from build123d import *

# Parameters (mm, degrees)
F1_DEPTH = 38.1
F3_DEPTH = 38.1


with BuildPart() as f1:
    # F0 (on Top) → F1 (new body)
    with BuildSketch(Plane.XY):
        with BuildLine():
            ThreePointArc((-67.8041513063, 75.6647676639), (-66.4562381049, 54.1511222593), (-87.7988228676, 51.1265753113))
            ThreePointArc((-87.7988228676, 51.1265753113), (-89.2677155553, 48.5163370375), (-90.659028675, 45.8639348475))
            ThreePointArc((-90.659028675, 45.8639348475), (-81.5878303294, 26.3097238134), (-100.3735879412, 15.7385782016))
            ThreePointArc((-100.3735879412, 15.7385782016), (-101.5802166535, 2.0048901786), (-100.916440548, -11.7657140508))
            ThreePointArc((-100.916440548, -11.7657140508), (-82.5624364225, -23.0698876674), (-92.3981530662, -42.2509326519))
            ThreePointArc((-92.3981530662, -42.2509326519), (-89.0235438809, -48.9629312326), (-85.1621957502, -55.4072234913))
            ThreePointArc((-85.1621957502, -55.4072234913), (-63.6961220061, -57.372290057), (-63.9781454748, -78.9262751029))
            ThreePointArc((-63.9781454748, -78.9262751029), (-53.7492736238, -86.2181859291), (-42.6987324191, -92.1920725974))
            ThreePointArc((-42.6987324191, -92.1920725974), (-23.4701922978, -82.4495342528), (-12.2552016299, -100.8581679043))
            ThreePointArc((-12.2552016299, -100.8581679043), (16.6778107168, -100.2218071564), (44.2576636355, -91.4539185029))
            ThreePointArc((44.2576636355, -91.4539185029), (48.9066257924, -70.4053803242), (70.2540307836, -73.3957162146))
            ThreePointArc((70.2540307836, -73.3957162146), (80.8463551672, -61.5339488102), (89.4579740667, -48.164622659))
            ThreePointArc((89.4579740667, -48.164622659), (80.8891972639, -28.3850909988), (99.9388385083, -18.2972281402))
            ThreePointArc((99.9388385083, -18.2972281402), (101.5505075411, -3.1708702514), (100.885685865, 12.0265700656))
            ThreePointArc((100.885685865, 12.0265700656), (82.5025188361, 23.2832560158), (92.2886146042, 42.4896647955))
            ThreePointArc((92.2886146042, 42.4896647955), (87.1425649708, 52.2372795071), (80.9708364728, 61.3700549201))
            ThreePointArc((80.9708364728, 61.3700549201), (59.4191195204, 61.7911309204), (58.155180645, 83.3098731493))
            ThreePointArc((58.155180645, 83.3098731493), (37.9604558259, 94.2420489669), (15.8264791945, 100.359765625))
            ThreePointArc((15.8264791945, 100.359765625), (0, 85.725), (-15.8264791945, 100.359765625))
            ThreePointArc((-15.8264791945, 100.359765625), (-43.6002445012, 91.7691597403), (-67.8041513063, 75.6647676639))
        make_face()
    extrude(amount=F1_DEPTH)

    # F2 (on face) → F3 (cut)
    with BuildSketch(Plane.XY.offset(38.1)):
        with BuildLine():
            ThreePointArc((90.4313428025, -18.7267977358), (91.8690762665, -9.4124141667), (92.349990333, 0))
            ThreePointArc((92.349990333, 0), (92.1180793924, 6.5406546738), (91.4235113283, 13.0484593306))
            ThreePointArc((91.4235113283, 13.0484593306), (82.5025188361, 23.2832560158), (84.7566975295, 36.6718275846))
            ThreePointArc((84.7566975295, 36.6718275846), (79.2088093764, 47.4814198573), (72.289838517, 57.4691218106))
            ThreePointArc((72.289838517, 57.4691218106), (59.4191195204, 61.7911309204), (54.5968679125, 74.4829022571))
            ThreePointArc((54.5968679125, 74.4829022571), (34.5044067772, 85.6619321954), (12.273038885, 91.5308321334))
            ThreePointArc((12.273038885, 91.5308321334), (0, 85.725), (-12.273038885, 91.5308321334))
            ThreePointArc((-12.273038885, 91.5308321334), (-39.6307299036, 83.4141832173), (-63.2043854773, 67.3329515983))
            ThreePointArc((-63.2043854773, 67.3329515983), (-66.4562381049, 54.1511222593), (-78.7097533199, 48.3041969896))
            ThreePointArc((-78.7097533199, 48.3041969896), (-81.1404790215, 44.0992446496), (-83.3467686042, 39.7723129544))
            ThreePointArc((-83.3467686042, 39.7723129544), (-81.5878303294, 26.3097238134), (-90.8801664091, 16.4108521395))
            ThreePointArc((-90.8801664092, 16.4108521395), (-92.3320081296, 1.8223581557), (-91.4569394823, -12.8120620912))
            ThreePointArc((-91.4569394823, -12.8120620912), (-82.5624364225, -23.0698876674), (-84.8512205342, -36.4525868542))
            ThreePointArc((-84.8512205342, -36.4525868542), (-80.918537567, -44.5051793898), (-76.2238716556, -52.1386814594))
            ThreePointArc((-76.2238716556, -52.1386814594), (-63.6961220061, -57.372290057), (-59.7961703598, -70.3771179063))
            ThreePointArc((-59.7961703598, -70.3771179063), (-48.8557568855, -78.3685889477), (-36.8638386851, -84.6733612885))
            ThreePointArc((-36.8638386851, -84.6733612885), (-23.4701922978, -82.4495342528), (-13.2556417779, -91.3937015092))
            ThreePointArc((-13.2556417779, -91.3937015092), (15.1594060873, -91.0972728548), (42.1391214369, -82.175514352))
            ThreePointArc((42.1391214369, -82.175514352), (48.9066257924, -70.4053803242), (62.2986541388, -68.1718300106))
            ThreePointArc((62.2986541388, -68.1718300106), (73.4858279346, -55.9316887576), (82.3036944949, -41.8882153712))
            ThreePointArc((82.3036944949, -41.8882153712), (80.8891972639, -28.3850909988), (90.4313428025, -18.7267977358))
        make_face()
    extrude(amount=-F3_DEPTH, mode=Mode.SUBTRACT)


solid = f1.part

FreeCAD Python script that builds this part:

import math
import FreeCAD as App
import Part
import Sketcher
from FreeCAD import Vector
Q = App.Units.Quantity

doc = App.newDocument("Part")
body = doc.addObject("PartDesign::Body", "Body")
body.AllowCompound = True

# Sketch on XY plane
sketch1 = body.newObject("Sketcher::SketchObject", "Sketch")
sketch1.AttachmentSupport = (doc.getObject("XY_Plane"), [""])
sketch1.MapMode = "FlatFace"
sketch1.addGeometry([
    Part.ArcOfCircle(Part.Circle(Vector(-79, 64, 0), Vector(0, 0, 1), 16), math.radians(-125), math.radians(46)),  # 0
    Part.ArcOfCircle(Part.Circle(Vector(0, 0, 0), Vector(0, 0, 1), 102), math.radians(149.79), math.radians(153.17)),  # 1
    Part.ArcOfCircle(Part.Circle(Vector(-97, 31, 0), Vector(0, 0, 1), 16), math.radians(-103), math.radians(68)),  # 2
    Part.ArcOfCircle(Part.Circle(Vector(0, 0, 0), Vector(0, 0, 1), 102), math.radians(171.09), math.radians(186.65)),  # 3
    Part.ArcOfCircle(Part.Circle(Vector(-98, -27, 0), Vector(0, 0, 1), 16), math.radians(-70), math.radians(101)),  # 4
    Part.ArcOfCircle(Part.Circle(Vector(0, 0, 0), Vector(0, 0, 1), 102), math.radians(-155.43), math.radians(-146.95)),  # 5
    Part.ArcOfCircle(Part.Circle(Vector(-75, -68, 0), Vector(0, 0, 1), 16), math.radians(-44), math.radians(128)),  # 6
    Part.ArcOfCircle(Part.Circle(Vector(0, 0, 0), Vector(0, 0, 1), 102), math.radians(-129.03), math.radians(-114.85)),  # 7
    Part.ArcOfCircle(Part.Circle(Vector(-28, -98, 0), Vector(0, 0, 1), 16), math.radians(-11), math.radians(160)),  # 8
    Part.ArcOfCircle(Part.Circle(Vector(0, 0, 0), Vector(0, 0, 1), 102), math.radians(-97), math.radians(-64)),  # 9
    Part.ArcOfCircle(Part.Circle(Vector(58, -83, 0), Vector(0, 0, 1), 16), math.radians(39), math.radians(210)),  # 10
    Part.ArcOfCircle(Part.Circle(Vector(0, 0, 0), Vector(0, 0, 1), 102), math.radians(-46.25), math.radians(-28.3)),  # 11
    Part.ArcOfCircle(Part.Circle(Vector(96, -34, 0), Vector(0, 0, 1), 16), math.radians(75), math.radians(246)),  # 12
    Part.ArcOfCircle(Part.Circle(Vector(0, 0, 0), Vector(0, 0, 1), 102), math.radians(-10.38), math.radians(6.8)),  # 13
    Part.ArcOfCircle(Part.Circle(Vector(98, 28, 0), Vector(0, 0, 1), 16), math.radians(110), math.radians(281)),  # 14
    Part.ArcOfCircle(Part.Circle(Vector(0, 0, 0), Vector(0, 0, 1), 102), math.radians(24.72), math.radians(37.16)),  # 15
    Part.ArcOfCircle(Part.Circle(Vector(70, 73, 0), Vector(0, 0, 1), 16), math.radians(141), math.radians(312)),  # 16
    Part.ArcOfCircle(Part.Circle(Vector(0, 0, 0), Vector(0, 0, 1), 102), math.radians(55), math.radians(81)),  # 17
    Part.ArcOfCircle(Part.Circle(Vector(0, 102, 0), Vector(0, 0, 1), 16), math.radians(-176), math.radians(-4)),  # 18
    Part.ArcOfCircle(Part.Circle(Vector(0, 0, 0), Vector(0, 0, 1), 102), math.radians(99), math.radians(132)),  # 19
], False)
sketch1.addConstraint([
    Sketcher.Constraint("Coincident", 0, 1, 1, 1),
    Sketcher.Constraint("Coincident", 1, 2, 2, 2),
    Sketcher.Constraint("Coincident", 2, 1, 3, 1),
    Sketcher.Constraint("Coincident", 3, 2, 4, 2),
    Sketcher.Constraint("Coincident", 4, 1, 5, 1),
    Sketcher.Constraint("Coincident", 5, 2, 6, 2),
    Sketcher.Constraint("Coincident", 6, 1, 7, 1),
    Sketcher.Constraint("Coincident", 7, 2, 8, 2),
    Sketcher.Constraint("Coincident", 8, 1, 9, 1),
    Sketcher.Constraint("Coincident", 9, 2, 10, 2),
    Sketcher.Constraint("Coincident", 10, 1, 11, 1),
    Sketcher.Constraint("Coincident", 11, 2, 12, 2),
    Sketcher.Constraint("Coincident", 12, 1, 13, 1),
    Sketcher.Constraint("Coincident", 13, 2, 14, 2),
    Sketcher.Constraint("Coincident", 14, 1, 15, 1),
    Sketcher.Constraint("Coincident", 15, 2, 16, 2),
    Sketcher.Constraint("Coincident", 16, 1, 17, 1),
    Sketcher.Constraint("Coincident", 17, 2, 18, 2),
    Sketcher.Constraint("Coincident", 18, 1, 19, 1),
    Sketcher.Constraint("Coincident", 19, 2, 0, 2),
    Sketcher.Constraint("Coincident", 1, 3, -1, 1),
    Sketcher.Constraint("Coincident", 3, 3, -1, 1),
    Sketcher.Constraint("Coincident", 5, 3, -1, 1),
    Sketcher.Constraint("Coincident", 7, 3, -1, 1),
    Sketcher.Constraint("Coincident", 9, 3, -1, 1),
    Sketcher.Constraint("Coincident", 11, 3, -1, 1),
    Sketcher.Constraint("Coincident", 13, 3, -1, 1),
    Sketcher.Constraint("Coincident", 15, 3, -1, 1),
    Sketcher.Constraint("Coincident", 17, 3, -1, 1),
    Sketcher.Constraint("Coincident", 19, 3, -1, 1),
    Sketcher.Constraint("Equal", 0, 2),
    Sketcher.Constraint("Equal", 1, 3),
    Sketcher.Constraint("Equal", 2, 4),
    Sketcher.Constraint("Equal", 3, 5),
    Sketcher.Constraint("Equal", 4, 6),
    Sketcher.Constraint("Equal", 5, 7),
    Sketcher.Constraint("Equal", 6, 8),
    Sketcher.Constraint("Equal", 7, 9),
    Sketcher.Constraint("Equal", 8, 10),
    Sketcher.Constraint("Equal", 9, 11),
    Sketcher.Constraint("Equal", 10, 12),
    Sketcher.Constraint("Equal", 11, 13),
    Sketcher.Constraint("Equal", 12, 14),
    Sketcher.Constraint("Equal", 13, 15),
    Sketcher.Constraint("Equal", 14, 16),
    Sketcher.Constraint("Equal", 15, 17),
    Sketcher.Constraint("Equal", 16, 18),
    Sketcher.Constraint("Equal", 17, 19),
    Sketcher.Constraint("PointOnObject", 18, 3, -2),
    Sketcher.Constraint("Radius", 1, Q("4 in")),
    Sketcher.Constraint("DistanceY", -1, 1, 18, 3, Q("4 in")),
    Sketcher.Constraint("Radius", 0, Q("0.625 in")),
    Sketcher.Constraint("DistanceX", -1, 1, 12, 1, Q("3.9345999 in")),
    Sketcher.Constraint("DistanceY", 14, 3, 16, 1, Q("2.1935001 in")),
    Sketcher.Constraint("DistanceX", 6, 3, -1, 1, Q("75.4917 mm")),
    Sketcher.Constraint("DistanceX", 8, 1, -1, 1, Q("12.255202 mm")),
    Sketcher.Constraint("DistanceY", 6, 3, 4, 3, Q("40.654699 mm")),
    Sketcher.Constraint("DistanceX", 2, 1, 2, 3, Q("3.6769 mm")),
    Sketcher.Constraint("DistanceY", 8, 1, 8, 3, Q("3.140201 mm")),
    Sketcher.Constraint("DistanceY", 12, 1, 14, 3, Q("45.892198 mm")),
    Sketcher.Constraint("DistanceY", 14, 1, 17, 2, Q("57.870101 mm")),
    Sketcher.Constraint("DistanceX", 0, 3, -1, 1, Q("78.762949 mm")),
    Sketcher.Constraint("DistanceY", 4, 3, -1, 1, Q("27.342089 mm")),
    Sketcher.Constraint("DistanceX", -1, 1, 10, 3, Q("57.963408 mm")),
    Sketcher.Constraint("DistanceX", -1, 1, 12, 3, Q("95.868678 mm")),
    Sketcher.Constraint("DistanceX", -1, 1, 16, 3, Q("70.42266 mm")),
    Sketcher.Constraint("DistanceX", 1, 2, -1, 1, Q("90.659029 mm")),
    Sketcher.Constraint("DistanceY", 9, 2, -1, 1, Q("91.453919 mm")),
    Sketcher.Constraint("DistanceX", 19, 2, -1, 1, Q("67.804151 mm")),
    Sketcher.Constraint("DistanceX", 4, 3, 2, 3, Q("1.155089 mm")),
])
pad1 = body.newObject("PartDesign::Pad", "Pad")
pad1.Profile = sketch1
pad1.Length = Q("1.5 in")

# Sketch on XY plane
sketch2 = body.newObject("Sketcher::SketchObject", "Sketch001")
sketch2.AttachmentSupport = (doc.getObject("XY_Plane"), [""])
sketch2.MapMode = "FlatFace"
sketch2.AttachmentOffset = App.Placement(Vector(0, 0, 1.5 * 25.4), App.Rotation())
sketch2.addGeometry([
    Part.ArcOfCircle(Part.Circle(Vector(0, 0, 0), Vector(0, 0, 1), 92), math.radians(-11.7), math.radians(0)),  # 0
    Part.ArcOfCircle(Part.Circle(Vector(0, 0, 0), Vector(0, 0, 1), 92), math.radians(0), math.radians(8.12)),  # 1
    Part.ArcOfCircle(Part.Circle(Vector(98, 28, 0), Vector(0, 0, 1), 16), math.radians(145), math.radians(246)),  # 2
    Part.ArcOfCircle(Part.Circle(Vector(0, 0, 0), Vector(0, 0, 1), 92), math.radians(23.4), math.radians(38.48)),  # 3
    Part.ArcOfCircle(Part.Circle(Vector(70, 73, 0), Vector(0, 0, 1), 16), math.radians(175), math.radians(277)),  # 4
    Part.ArcOfCircle(Part.Circle(Vector(0, 0, 0), Vector(0, 0, 1), 92), math.radians(54), math.radians(82)),  # 5
    Part.ArcOfCircle(Part.Circle(Vector(0, 102, 0), Vector(0, 0, 1), 16), math.radians(-141), math.radians(-39)),  # 6
    Part.ArcOfCircle(Part.Circle(Vector(0, 0, 0), Vector(0, 0, 1), 92), math.radians(98), math.radians(133)),  # 7
    Part.ArcOfCircle(Part.Circle(Vector(-79, 64, 0), Vector(0, 0, 1), 16), math.radians(-90), math.radians(11)),  # 8
    Part.ArcOfCircle(Part.Circle(Vector(0, 0, 0), Vector(0, 0, 1), 92), math.radians(148.46), math.radians(154.49)),  # 9
    Part.ArcOfCircle(Part.Circle(Vector(-97, 31, 0), Vector(0, 0, 1), 16), math.radians(-69), math.radians(33)),  # 10
    Part.ArcOfCircle(Part.Circle(Vector(0, 0, 0), Vector(0, 0, 1), 92), math.radians(169.76), math.radians(187.97)),  # 11
    Part.ArcOfCircle(Part.Circle(Vector(-98, -27, 0), Vector(0, 0, 1), 16), math.radians(-35), math.radians(66)),  # 12
    Part.ArcOfCircle(Part.Circle(Vector(0, 0, 0), Vector(0, 0, 1), 92), math.radians(-156.75), math.radians(-145.63)),  # 13
    Part.ArcOfCircle(Part.Circle(Vector(-75, -68, 0), Vector(0, 0, 1), 16), math.radians(-9), math.radians(93)),  # 14
    Part.ArcOfCircle(Part.Circle(Vector(0, 0, 0), Vector(0, 0, 1), 92), math.radians(-130.35), math.radians(-113.53)),  # 15
    Part.ArcOfCircle(Part.Circle(Vector(-28, -98, 0), Vector(0, 0, 1), 16), math.radians(23), math.radians(125)),  # 16
    Part.ArcOfCircle(Part.Circle(Vector(0, 0, 0), Vector(0, 0, 1), 92), math.radians(-98), math.radians(-63)),  # 17
    Part.ArcOfCircle(Part.Circle(Vector(58, -83, 0), Vector(0, 0, 1), 16), math.radians(74), math.radians(175)),  # 18
    Part.ArcOfCircle(Part.Circle(Vector(0, 0, 0), Vector(0, 0, 1), 92), math.radians(-48), math.radians(-27)),  # 19
    Part.ArcOfCircle(Part.Circle(Vector(96, -34, 0), Vector(0, 0, 1), 16), math.radians(110), math.radians(211)),  # 20
], False)
sketch2.addConstraint([
    Sketcher.Constraint("Tangent", 0, 2, 1, 1),
    Sketcher.Constraint("Coincident", 1, 2, 2, 2),
    Sketcher.Constraint("Coincident", 2, 1, 3, 1),
    Sketcher.Constraint("Coincident", 3, 2, 4, 2),
    Sketcher.Constraint("Coincident", 4, 1, 5, 1),
    Sketcher.Constraint("Coincident", 5, 2, 6, 2),
    Sketcher.Constraint("Coincident", 6, 1, 7, 1),
    Sketcher.Constraint("Coincident", 7, 2, 8, 2),
    Sketcher.Constraint("Coincident", 8, 1, 9, 1),
    Sketcher.Constraint("Coincident", 9, 2, 10, 2),
    Sketcher.Constraint("Coincident", 10, 1, 11, 1),
    Sketcher.Constraint("Coincident", 11, 2, 12, 2),
    Sketcher.Constraint("Coincident", 12, 1, 13, 1),
    Sketcher.Constraint("Coincident", 13, 2, 14, 2),
    Sketcher.Constraint("Coincident", 14, 1, 15, 1),
    Sketcher.Constraint("Coincident", 15, 2, 16, 2),
    Sketcher.Constraint("Coincident", 16, 1, 17, 1),
    Sketcher.Constraint("Coincident", 17, 2, 18, 2),
    Sketcher.Constraint("Coincident", 18, 1, 19, 1),
    Sketcher.Constraint("Coincident", 19, 2, 20, 2),
    Sketcher.Constraint("Coincident", 20, 1, 0, 1),
    Sketcher.Constraint("Coincident", 0, 3, -1, 1),
    Sketcher.Constraint("Coincident", 3, 3, -1, 1),
    Sketcher.Constraint("Coincident", 5, 3, -1, 1),
    Sketcher.Constraint("Coincident", 7, 3, -1, 1),
    Sketcher.Constraint("Coincident", 9, 3, -1, 1),
    Sketcher.Constraint("Coincident", 11, 3, -1, 1),
    Sketcher.Constraint("Coincident", 13, 3, -1, 1),
    Sketcher.Constraint("Coincident", 15, 3, -1, 1),
    Sketcher.Constraint("Coincident", 17, 3, -1, 1),
    Sketcher.Constraint("Coincident", 19, 3, -1, 1),
    Sketcher.Constraint("Equal", 0, 1),
    Sketcher.Constraint("Equal", 1, 3),
    Sketcher.Constraint("Equal", 2, 4),
    Sketcher.Constraint("Equal", 3, 5),
    Sketcher.Constraint("Equal", 4, 6),
    Sketcher.Constraint("Equal", 5, 7),
    Sketcher.Constraint("Equal", 6, 8),
    Sketcher.Constraint("Equal", 7, 9),
    Sketcher.Constraint("Equal", 8, 10),
    Sketcher.Constraint("Equal", 9, 11),
    Sketcher.Constraint("Equal", 10, 12),
    Sketcher.Constraint("Equal", 11, 13),
    Sketcher.Constraint("Equal", 12, 14),
    Sketcher.Constraint("Equal", 13, 15),
    Sketcher.Constraint("Equal", 14, 16),
    Sketcher.Constraint("Equal", 15, 17),
    Sketcher.Constraint("Equal", 16, 18),
    Sketcher.Constraint("Equal", 17, 19),
    Sketcher.Constraint("Equal", 18, 20),
    Sketcher.Constraint("PointOnObject", 6, 3, -2),
    Sketcher.Constraint("PointOnObject", 0, 2, -1),
    Sketcher.Constraint("DistanceY", -1, 1, 6, 3, Q("4 in")),
    Sketcher.Constraint("Radius", 2, Q("0.625 in")),
    Sketcher.Constraint("Radius", 0, Q("92.34999 mm")),
    Sketcher.Constraint("DistanceX", 18, 1, 19, 2, Q("0.7876 in")),
    Sketcher.Constraint("DistanceX", 14, 3, -1, 1, Q("75.4917 mm")),
    Sketcher.Constraint("DistanceY", 16, 1, -1, 1, Q("91.393702 mm")),
    Sketcher.Constraint("DistanceY", 14, 3, 12, 3, Q("40.654699 mm")),
    Sketcher.Constraint("DistanceY", 4, 3, 5, 2, Q("18.296899 mm")),
    Sketcher.Constraint("DistanceX", 6, 1, 4, 3, Q("82.695699 mm")),
    Sketcher.Constraint("DistanceY", 14, 3, 12, 1, Q("31.544201 mm")),
    Sketcher.Constraint("DistanceX", 13, 2, 14, 1, Q("16.427701 mm")),
    Sketcher.Constraint("DistanceY", 18, 3, 17, 2, Q("1.267899 mm")),
    Sketcher.Constraint("DistanceY", 18, 3, 19, 2, Q("41.555198 mm")),
    Sketcher.Constraint("DistanceY", -1, 1, 2, 3, Q("27.59497 mm")),
    Sketcher.Constraint("DistanceX", 8, 3, -1, 1, Q("78.762949 mm")),
    Sketcher.Constraint("DistanceX", -1, 1, 20, 3, Q("95.868678 mm")),
    Sketcher.Constraint("DistanceX", -1, 1, 1, 2, Q("91.423511 mm")),
    Sketcher.Constraint("DistanceY", -1, 1, 7, 2, Q("67.332952 mm")),
    Sketcher.Constraint("DistanceX", 9, 2, -1, 1, Q("83.346769 mm")),
    Sketcher.Constraint("DistanceX", 15, 2, -1, 1, Q("36.863839 mm")),
    Sketcher.Constraint("DistanceX", 10, 3, 8, 3, Q("17.933739 mm")),
])
pocket1 = body.newObject("PartDesign::Pocket", "Pocket")
pocket1.Profile = sketch2
pocket1.Length = Q("1.5 in")

doc.recompute()
